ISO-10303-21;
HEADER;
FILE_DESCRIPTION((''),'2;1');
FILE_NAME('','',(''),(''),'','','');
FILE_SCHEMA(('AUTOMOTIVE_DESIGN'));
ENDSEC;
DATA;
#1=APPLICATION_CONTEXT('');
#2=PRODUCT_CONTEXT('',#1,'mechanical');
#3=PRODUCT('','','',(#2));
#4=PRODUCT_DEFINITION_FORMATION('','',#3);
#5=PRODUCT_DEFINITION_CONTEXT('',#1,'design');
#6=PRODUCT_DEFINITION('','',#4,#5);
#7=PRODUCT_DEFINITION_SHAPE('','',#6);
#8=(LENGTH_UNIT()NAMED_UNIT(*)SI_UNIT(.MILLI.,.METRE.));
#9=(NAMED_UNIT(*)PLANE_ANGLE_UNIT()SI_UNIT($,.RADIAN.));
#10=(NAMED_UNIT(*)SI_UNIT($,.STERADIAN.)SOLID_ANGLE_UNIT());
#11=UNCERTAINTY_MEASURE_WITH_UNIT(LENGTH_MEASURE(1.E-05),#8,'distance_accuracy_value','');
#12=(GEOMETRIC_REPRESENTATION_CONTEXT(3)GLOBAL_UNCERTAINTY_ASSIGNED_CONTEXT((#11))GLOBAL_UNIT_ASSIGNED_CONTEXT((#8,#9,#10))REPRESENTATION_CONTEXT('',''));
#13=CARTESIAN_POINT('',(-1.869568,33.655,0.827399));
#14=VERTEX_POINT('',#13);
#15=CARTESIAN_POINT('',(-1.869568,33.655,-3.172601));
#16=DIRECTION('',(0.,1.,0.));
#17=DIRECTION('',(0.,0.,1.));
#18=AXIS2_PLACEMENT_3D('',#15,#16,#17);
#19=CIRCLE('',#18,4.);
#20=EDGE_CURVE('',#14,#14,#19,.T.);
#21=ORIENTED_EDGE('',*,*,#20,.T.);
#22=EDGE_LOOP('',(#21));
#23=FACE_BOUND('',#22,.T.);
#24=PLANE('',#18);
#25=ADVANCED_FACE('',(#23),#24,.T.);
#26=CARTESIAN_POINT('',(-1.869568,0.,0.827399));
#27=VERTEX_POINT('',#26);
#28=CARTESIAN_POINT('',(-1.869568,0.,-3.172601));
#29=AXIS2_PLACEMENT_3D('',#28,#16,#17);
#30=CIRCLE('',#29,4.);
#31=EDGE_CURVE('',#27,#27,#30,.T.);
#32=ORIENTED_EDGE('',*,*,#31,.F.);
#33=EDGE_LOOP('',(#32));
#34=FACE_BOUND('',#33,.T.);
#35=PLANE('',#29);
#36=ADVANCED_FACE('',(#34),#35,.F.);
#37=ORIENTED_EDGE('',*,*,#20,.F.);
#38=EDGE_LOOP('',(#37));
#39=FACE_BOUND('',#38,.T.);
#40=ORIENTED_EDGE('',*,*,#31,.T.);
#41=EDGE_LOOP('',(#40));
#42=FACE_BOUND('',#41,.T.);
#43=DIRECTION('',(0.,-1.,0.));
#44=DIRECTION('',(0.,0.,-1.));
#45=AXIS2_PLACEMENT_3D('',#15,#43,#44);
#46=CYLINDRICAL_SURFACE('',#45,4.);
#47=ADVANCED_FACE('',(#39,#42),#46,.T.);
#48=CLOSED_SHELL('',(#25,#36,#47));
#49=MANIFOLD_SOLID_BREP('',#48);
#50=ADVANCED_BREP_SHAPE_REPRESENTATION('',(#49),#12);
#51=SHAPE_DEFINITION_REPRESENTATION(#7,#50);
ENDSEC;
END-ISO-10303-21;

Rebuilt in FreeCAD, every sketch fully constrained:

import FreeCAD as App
import Part
import Sketcher
from FreeCAD import Vector

doc = App.newDocument("Part")
body = doc.addObject("PartDesign::Body", "Body")

sketch1 = body.newObject("Sketcher::SketchObject", "Sketch")
sketch1.AttachmentSupport = (doc.getObject("XZ_Plane"), [""])
sketch1.MapMode = "FlatFace"
sketch1.addGeometry(Part.Circle(Vector(-1.869568, -3.172601, 0), Vector(0, 0, 1), 4), False)
sketch1.addConstraint([
    Sketcher.Constraint("Diameter", 0, 8.0),
    Sketcher.Constraint("DistanceY", 0, 3, -1, 1, 3.172601),
    Sketcher.Constraint("DistanceX", 0, 3, -1, 1, 1.869568),
])
pad1 = body.newObject("PartDesign::Pad", "Pad")
pad1.Profile = sketch1
pad1.Length = 33.655
pad1.Reversed = True

doc.recompute()
